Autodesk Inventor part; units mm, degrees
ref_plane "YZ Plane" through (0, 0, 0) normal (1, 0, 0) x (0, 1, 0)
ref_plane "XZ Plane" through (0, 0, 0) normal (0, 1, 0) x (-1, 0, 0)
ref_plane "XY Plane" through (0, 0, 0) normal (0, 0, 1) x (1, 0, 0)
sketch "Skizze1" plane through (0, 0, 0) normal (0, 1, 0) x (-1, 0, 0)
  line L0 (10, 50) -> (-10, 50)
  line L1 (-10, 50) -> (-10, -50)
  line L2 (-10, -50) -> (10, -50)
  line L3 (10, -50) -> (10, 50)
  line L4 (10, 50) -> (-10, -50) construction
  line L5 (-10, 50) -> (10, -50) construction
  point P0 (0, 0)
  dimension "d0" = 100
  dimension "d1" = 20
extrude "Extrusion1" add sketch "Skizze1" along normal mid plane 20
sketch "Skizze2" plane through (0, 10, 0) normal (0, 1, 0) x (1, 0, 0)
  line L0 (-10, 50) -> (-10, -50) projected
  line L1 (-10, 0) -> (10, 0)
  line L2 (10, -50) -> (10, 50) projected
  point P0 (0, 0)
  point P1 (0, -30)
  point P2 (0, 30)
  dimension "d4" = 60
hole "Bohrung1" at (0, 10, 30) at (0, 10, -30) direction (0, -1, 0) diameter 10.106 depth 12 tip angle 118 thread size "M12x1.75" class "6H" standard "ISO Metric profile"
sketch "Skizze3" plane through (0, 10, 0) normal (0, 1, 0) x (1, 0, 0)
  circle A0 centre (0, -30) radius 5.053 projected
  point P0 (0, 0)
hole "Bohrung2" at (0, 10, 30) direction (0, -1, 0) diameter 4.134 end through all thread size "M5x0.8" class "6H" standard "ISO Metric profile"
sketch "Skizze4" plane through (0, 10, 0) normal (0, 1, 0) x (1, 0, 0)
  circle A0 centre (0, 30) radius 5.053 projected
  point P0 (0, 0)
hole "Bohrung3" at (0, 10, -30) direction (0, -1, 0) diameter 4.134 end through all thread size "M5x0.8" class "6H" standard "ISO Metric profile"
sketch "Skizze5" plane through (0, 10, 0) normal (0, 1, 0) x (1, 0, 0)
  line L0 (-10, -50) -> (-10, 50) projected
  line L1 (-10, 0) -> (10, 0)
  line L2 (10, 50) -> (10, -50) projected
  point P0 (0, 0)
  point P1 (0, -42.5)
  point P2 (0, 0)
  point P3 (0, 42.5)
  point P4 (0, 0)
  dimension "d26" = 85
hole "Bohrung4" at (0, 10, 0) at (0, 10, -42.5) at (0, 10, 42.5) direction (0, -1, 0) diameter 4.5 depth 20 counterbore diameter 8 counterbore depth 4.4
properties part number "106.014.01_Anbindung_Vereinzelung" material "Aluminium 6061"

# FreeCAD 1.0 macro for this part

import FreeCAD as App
import Part
import Sketcher

V = App.Vector


def add_polygon(sketch, points):
    """Adds a closed chain of lines whose ends are joined by coincident constraints."""
    first, n = sketch.GeometryCount, len(points)
    for a, b in zip(points, points[1:] + points[:1]):
        sketch.addGeometry(Part.LineSegment(App.Vector(*a, 0), App.Vector(*b, 0)), False)
    for i in range(n):
        sketch.addConstraint(Sketcher.Constraint("Coincident", first + i, 2, first + (i + 1) % n, 1))

doc = App.newDocument("Part")
body = doc.addObject("PartDesign::Body", "Body")

# Sketch on XZ plane
sketch1 = doc.addObject("Sketcher::SketchObject", "Sketch")
body.addObject(sketch1)
sketch1.AttachmentSupport = (doc.XZ_Plane, [""])
sketch1.MapMode = "FlatFace"
add_polygon(sketch1, [(-10, -50), (-10, 50), (10, 50), (10, -50)])  # lines 0-3
sketch1.addConstraint([
    Sketcher.Constraint("Vertical", 0),
    Sketcher.Constraint("Horizontal", 1),
    Sketcher.Constraint("Vertical", 2),
    Sketcher.Constraint("Horizontal", 3),
    Sketcher.Constraint("Symmetric", 0, 2, 2, 2, -1, 1),
    Sketcher.Constraint("DistanceX", 1, 1, 1, 2, 20.0),
    Sketcher.Constraint("DistanceY", 0, 1, 0, 2, 100.0),
])
pad1 = doc.addObject("PartDesign::Pad", "Pad")
body.addObject(pad1)
pad1.Profile = sketch1
pad1.Length = 20
pad1.Midplane = True

# Sketch on XZ plane
sketch2 = doc.addObject("Sketcher::SketchObject", "Sketch001")
body.addObject(sketch2)
sketch2.AttachmentSupport = (doc.XZ_Plane, [""])
sketch2.MapMode = "FlatFace"
sketch2.AttachmentOffset = App.Placement(V(0, 0, -10), App.Rotation())
sketch2.addGeometry([
    Part.Circle(V(0, 30, 0), V(0, 0, 1), 5.053),
    Part.Circle(V(0, -30, 0), V(0, 0, 1), 5.053),
], False)
sketch2.addConstraint([
    Sketcher.Constraint("Equal", 0, 1),
    Sketcher.Constraint("Symmetric", 0, 3, 1, 3, -1, 1),
    Sketcher.Constraint("PointOnObject", 0, 3, -2),
    Sketcher.Constraint("Diameter", 0, 10.106),
    Sketcher.Constraint("DistanceY", -1, 1, 0, 3, 30.0),
])
doc.recompute()
hole = doc.addObject("PartDesign::Hole", "Hole")
body.addObject(hole)
hole.Profile = sketch2
hole.ThreadType = "None"
hole.Diameter = 10.106
hole.DepthType = "Dimension"
hole.Depth = 12
hole.DrillPoint = "Angled"
hole.DrillPointAngle = 118
hole.Reversed = True

# Sketch on XZ plane
sketch3 = doc.addObject("Sketcher::SketchObject", "Sketch002")
body.addObject(sketch3)
sketch3.AttachmentSupport = (doc.XZ_Plane, [""])
sketch3.MapMode = "FlatFace"
sketch3.AttachmentOffset = App.Placement(V(0, 0, -10), App.Rotation())
sketch3.addGeometry(Part.Circle(V(0, 30, 0), V(0, 0, 1), 2.067), False)
sketch3.addConstraint([
    Sketcher.Constraint("PointOnObject", 0, 3, -2),
    Sketcher.Constraint("Diameter", 0, 4.134),
    Sketcher.Constraint("DistanceY", -1, 1, 0, 3, 30.0),
])
doc.recompute()
hole2 = doc.addObject("PartDesign::Hole", "Hole001")
body.addObject(hole2)
hole2.Profile = sketch3
hole2.ThreadType = "None"
hole2.Diameter = 4.134
hole2.DepthType = "ThroughAll"
hole2.Reversed = True

# Sketch on XZ plane
sketch4 = doc.addObject("Sketcher::SketchObject", "Sketch003")
body.addObject(sketch4)
sketch4.AttachmentSupport = (doc.XZ_Plane, [""])
sketch4.MapMode = "FlatFace"
sketch4.AttachmentOffset = App.Placement(V(0, 0, -10), App.Rotation())
sketch4.addGeometry(Part.Circle(V(0, -30, 0), V(0, 0, 1), 2.067), False)
sketch4.addConstraint([
    Sketcher.Constraint("PointOnObject", 0, 3, -2),
    Sketcher.Constraint("Diameter", 0, 4.134),
    Sketcher.Constraint("DistanceY", 0, 3, -1, 1, 30.0),
])
doc.recompute()
hole3 = doc.addObject("PartDesign::Hole", "Hole002")
body.addObject(hole3)
hole3.Profile = sketch4
hole3.ThreadType = "None"
hole3.Diameter = 4.134
hole3.DepthType = "ThroughAll"
hole3.Reversed = True

# Sketch on XZ plane
sketch5 = doc.addObject("Sketcher::SketchObject", "Sketch004")
body.addObject(sketch5)
sketch5.AttachmentSupport = (doc.XZ_Plane, [""])
sketch5.MapMode = "FlatFace"
sketch5.AttachmentOffset = App.Placement(V(0, 0, -10), App.Rotation())
sketch5.addGeometry([
    Part.Circle(V(0, 0, 0), V(0, 0, 1), 2.25),
    Part.Circle(V(0, -42.5, 0), V(0, 0, 1), 2.25),
    Part.Circle(V(0, 42.5, 0), V(0, 0, 1), 2.25),
], False)
sketch5.addConstraint([
    Sketcher.Constraint("Coincident", 0, 3, -1, 1),
    Sketcher.Constraint("Equal", 0, 1),
    Sketcher.Constraint("Equal", 1, 2),
    Sketcher.Constraint("Symmetric", 1, 3, 2, 3, -1, 1),
    Sketcher.Constraint("PointOnObject", 1, 3, -2),
    Sketcher.Constraint("Diameter", 0, 4.5),
    Sketcher.Constraint("DistanceY", 1, 3, 2, 3, 85.0),
])
doc.recompute()
hole4 = doc.addObject("PartDesign::Hole", "Hole003")
body.addObject(hole4)
hole4.Profile = sketch5
hole4.ThreadType = "None"
hole4.Diameter = 4.5
hole4.DepthType = "Dimension"
hole4.Depth = 20
hole4.DrillPoint = "Flat"
hole4.HoleCutType = "Counterbore"
hole4.HoleCutDiameter = 8
hole4.HoleCutDepth = 4.4
hole4.Reversed = True

doc.recompute()
